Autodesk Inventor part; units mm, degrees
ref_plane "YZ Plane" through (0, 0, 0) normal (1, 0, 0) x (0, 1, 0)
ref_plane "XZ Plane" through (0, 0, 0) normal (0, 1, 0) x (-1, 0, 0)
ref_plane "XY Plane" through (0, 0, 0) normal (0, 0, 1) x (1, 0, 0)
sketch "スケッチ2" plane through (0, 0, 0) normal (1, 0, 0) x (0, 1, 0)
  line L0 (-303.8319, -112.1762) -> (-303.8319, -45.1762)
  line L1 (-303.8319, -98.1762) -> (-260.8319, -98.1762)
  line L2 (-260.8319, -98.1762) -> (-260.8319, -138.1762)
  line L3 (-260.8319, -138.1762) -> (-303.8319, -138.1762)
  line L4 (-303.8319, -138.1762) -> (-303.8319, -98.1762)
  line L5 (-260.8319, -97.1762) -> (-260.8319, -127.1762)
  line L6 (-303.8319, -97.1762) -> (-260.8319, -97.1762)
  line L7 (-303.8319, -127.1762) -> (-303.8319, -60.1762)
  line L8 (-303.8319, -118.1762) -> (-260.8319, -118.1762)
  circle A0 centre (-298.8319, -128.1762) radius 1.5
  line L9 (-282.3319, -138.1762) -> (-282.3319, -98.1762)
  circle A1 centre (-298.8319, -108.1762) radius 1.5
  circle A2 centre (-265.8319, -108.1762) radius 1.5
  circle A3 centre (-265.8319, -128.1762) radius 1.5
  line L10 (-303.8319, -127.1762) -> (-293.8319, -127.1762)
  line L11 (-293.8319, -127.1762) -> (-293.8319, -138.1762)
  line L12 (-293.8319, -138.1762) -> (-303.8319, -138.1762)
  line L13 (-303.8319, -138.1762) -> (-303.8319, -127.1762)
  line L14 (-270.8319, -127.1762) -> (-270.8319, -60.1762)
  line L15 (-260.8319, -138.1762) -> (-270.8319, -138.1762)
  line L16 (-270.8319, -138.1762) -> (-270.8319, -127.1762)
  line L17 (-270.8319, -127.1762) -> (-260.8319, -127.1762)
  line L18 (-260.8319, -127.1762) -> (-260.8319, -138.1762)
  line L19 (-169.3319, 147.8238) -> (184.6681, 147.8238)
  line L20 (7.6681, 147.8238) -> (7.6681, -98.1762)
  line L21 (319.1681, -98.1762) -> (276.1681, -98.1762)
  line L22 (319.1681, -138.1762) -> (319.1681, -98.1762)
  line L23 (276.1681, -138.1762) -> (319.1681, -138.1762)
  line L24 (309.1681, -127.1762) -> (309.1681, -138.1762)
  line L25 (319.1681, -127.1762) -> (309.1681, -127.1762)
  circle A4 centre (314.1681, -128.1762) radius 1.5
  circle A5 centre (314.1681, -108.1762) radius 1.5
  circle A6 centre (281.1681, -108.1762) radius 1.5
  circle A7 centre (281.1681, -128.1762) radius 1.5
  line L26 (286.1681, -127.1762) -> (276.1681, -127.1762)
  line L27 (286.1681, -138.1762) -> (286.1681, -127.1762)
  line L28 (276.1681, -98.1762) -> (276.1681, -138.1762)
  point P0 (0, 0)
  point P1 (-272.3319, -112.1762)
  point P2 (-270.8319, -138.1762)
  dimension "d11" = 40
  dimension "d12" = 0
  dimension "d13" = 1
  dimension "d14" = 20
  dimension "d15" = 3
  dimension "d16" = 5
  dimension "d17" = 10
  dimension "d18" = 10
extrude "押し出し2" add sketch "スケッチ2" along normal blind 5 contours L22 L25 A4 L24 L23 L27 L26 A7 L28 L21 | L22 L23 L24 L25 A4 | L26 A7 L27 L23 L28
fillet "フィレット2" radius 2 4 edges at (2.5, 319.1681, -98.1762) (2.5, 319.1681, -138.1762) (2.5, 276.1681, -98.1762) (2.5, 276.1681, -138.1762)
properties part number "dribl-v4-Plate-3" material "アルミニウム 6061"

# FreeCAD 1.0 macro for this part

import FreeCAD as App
import Part
import Sketcher

V = App.Vector
Q = App.Units.Quantity


def edges_at(feature, points):
    """Names of the edges that pass closest to the given points."""
    edges = feature.Shape.Edges
    near = lambda p: min(range(len(edges)), key=lambda i: edges[i].distToShape(Part.Vertex(*p))[0])
    return sorted({f"Edge{near(p) + 1}" for p in points})


def add_polygon(sketch, points):
    """Adds a closed chain of lines whose ends are joined by coincident constraints."""
    first, n = sketch.GeometryCount, len(points)
    for a, b in zip(points, points[1:] + points[:1]):
        sketch.addGeometry(Part.LineSegment(App.Vector(*a, 0), App.Vector(*b, 0)), False)
    for i in range(n):
        sketch.addConstraint(Sketcher.Constraint("Coincident", first + i, 2, first + (i + 1) % n, 1))

doc = App.newDocument("Part")
body = doc.addObject("PartDesign::Body", "Body")

# Sketch on YZ plane
sketch1 = body.newObject("Sketcher::SketchObject", "Sketch")
sketch1.AttachmentSupport = (doc.getObject("YZ_Plane"), [""])
sketch1.MapMode = "FlatFace"
add_polygon(sketch1, [(319.1681, -98.1762), (276.1681, -98.1762), (276.1681, -138.1762), (319.1681, -138.1762)])  # lines 0-3
sketch1.addGeometry(Part.Circle(V(314.1681, -128.1762, 0), V(0, 0, 1), 1.5), False)  # 4
sketch1.addGeometry(Part.Circle(V(281.1681, -128.1762, 0), V(0, 0, 1), 1.5), False)  # 5
sketch1.addGeometry(Part.Circle(V(281.1681, -108.1762, 0), V(0, 0, 1), 1.5), False)  # 6
sketch1.addGeometry(Part.Circle(V(314.1681, -108.1762, 0), V(0, 0, 1), 1.5), False)  # 7
sketch1.addConstraint(Sketcher.Constraint("Horizontal", 0))
sketch1.addConstraint(Sketcher.Constraint("Vertical", 1))
sketch1.addConstraint(Sketcher.Constraint("Horizontal", 2))
sketch1.addConstraint(Sketcher.Constraint("Vertical", 3))
sketch1.addConstraint(Sketcher.Constraint("Equal", 4, 5))
sketch1.addConstraint(Sketcher.Constraint("Equal", 5, 6))
sketch1.addConstraint(Sketcher.Constraint("Equal", 6, 7))
sketch1.addConstraint(Sketcher.Constraint("Horizontal", 4, 3, 5, 3))
sketch1.addConstraint(Sketcher.Constraint("Horizontal", 6, 3, 7, 3))
sketch1.addConstraint(Sketcher.Constraint("Vertical", 5, 3, 6, 3))
sketch1.addConstraint(Sketcher.Constraint("Vertical", 4, 3, 7, 3))
sketch1.addConstraint(Sketcher.Constraint("Diameter", 4, Q("3 mm")))
sketch1.addConstraint(Sketcher.Constraint("DistanceY", 1, 2, 1, 1, Q("40 mm")))
sketch1.addConstraint(Sketcher.Constraint("DistanceY", 5, 3, 6, 3, Q("20 mm")))
sketch1.addConstraint(Sketcher.Constraint("DistanceX", 0, 2, 6, 3, Q("5 mm")))
sketch1.addConstraint(Sketcher.Constraint("DistanceY", 6, 3, 0, 2, Q("10 mm")))
sketch1.addConstraint(Sketcher.Constraint("DistanceX", 4, 3, 2, 2, Q("5 mm")))
sketch1.addConstraint(Sketcher.Constraint("DistanceX", 0, 2, 0, 1, Q("43 mm")))
sketch1.addConstraint(Sketcher.Constraint("DistanceX", -1, 1, 4, 3, Q("314.168 mm")))
sketch1.addConstraint(Sketcher.Constraint("DistanceY", 4, 3, -1, 1, Q("128.1762 mm")))
pad1 = body.newObject("PartDesign::Pad", "Pad")
pad1.Profile = sketch1
pad1.Length = 5
doc.recompute()

fillet = body.newObject("PartDesign::Fillet", "Fillet")
fillet.Base = (pad1, edges_at(pad1, [
    (2.5, 319.168, -98.176),
    (2.5, 319.168, -138.176),
    (2.5, 276.168, -98.176),
    (2.5, 276.168, -138.176),
]))
fillet.Radius = 2

doc.recompute()
